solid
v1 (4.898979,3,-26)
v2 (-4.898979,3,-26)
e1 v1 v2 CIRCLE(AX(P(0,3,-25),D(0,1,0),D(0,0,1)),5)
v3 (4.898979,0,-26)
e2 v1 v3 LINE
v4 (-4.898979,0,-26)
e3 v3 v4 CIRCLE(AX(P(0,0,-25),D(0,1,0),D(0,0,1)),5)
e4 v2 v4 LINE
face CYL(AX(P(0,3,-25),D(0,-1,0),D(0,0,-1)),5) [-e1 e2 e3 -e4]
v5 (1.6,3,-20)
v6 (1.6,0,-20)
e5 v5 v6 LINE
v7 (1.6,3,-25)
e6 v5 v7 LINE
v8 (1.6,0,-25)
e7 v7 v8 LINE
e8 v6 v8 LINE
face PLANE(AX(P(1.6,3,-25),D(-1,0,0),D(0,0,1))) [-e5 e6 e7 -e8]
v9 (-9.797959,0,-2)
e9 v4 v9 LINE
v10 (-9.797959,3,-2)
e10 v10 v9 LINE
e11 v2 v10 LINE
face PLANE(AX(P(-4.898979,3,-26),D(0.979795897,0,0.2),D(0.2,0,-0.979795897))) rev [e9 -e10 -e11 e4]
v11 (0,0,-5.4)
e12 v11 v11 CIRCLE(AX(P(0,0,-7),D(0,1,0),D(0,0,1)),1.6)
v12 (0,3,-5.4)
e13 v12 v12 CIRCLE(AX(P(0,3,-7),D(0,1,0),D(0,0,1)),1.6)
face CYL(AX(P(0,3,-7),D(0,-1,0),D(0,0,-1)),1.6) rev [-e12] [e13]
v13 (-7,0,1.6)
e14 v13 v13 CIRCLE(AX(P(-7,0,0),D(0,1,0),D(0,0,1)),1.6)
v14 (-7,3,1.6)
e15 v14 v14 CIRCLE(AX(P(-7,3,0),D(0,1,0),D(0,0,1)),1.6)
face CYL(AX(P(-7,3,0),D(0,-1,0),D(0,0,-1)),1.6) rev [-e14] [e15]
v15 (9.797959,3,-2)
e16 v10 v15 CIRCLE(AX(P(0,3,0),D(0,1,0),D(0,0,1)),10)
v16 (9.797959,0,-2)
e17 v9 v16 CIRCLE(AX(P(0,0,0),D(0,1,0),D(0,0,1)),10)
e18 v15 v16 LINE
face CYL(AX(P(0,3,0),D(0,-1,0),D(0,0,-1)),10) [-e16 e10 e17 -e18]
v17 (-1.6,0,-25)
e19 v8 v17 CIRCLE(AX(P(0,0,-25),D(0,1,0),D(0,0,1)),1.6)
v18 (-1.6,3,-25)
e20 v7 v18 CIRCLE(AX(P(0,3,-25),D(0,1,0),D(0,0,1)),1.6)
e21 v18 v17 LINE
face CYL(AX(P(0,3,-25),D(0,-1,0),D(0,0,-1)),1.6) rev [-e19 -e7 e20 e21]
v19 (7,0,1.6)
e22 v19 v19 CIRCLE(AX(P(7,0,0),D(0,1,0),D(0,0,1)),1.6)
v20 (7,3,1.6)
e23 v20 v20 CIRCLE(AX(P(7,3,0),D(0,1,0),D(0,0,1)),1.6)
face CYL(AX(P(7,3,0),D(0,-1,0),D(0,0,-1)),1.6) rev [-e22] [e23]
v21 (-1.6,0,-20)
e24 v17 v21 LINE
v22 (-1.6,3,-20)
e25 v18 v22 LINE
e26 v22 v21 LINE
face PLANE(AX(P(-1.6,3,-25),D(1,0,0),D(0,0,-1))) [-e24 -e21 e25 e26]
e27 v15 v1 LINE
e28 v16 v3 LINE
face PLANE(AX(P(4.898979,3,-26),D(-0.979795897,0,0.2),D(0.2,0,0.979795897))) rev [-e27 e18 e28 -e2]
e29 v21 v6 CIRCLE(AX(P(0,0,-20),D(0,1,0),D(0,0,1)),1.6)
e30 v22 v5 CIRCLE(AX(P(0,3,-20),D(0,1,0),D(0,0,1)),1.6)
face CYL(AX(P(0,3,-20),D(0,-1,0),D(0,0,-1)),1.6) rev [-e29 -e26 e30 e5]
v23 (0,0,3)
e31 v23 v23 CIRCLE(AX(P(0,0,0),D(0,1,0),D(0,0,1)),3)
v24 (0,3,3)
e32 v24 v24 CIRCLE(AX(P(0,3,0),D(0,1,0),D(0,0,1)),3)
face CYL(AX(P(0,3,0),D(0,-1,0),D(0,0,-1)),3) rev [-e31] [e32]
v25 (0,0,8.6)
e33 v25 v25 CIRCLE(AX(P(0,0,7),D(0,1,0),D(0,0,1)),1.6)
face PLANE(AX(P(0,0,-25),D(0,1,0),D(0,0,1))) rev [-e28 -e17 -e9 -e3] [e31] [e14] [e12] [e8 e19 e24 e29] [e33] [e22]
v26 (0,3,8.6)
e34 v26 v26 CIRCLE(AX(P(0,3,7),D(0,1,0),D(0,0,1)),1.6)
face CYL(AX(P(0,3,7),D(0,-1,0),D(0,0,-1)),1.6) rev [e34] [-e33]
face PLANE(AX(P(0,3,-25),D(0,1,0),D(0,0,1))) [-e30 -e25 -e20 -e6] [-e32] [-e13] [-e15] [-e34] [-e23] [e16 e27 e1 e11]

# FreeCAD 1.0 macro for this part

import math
import FreeCAD as App
import Part
import Sketcher
from FreeCAD import Vector

doc = App.newDocument("Part")
body = doc.addObject("PartDesign::Body", "Body")

# Sketch on XZ plane
sketch1 = body.newObject("Sketcher::SketchObject", "Sketch")
sketch1.AttachmentSupport = (doc.getObject("XZ_Plane"), [""])
sketch1.MapMode = "FlatFace"
sketch1.addGeometry(Part.LineSegment(Vector(-4.9, -26, 0), Vector(-9.8, -2, 0)), False)
sketch1.addGeometry(Part.ArcOfCircle(Part.Circle(Vector(0, 0, 0), Vector(0, 0, 1), 10), math.radians(-12), math.radians(192)), False)
sketch1.addGeometry(Part.LineSegment(Vector(9.8, -2, 0), Vector(4.9, -26, 0)), False)
sketch1.addGeometry(Part.ArcOfCircle(Part.Circle(Vector(0, -25, 0), Vector(0, 0, 1), 5), math.radians(-168), math.radians(-12)), False)
sketch1.addGeometry(Part.Circle(Vector(-7, 0, 0), Vector(0, 0, 1), 1.6), False)
sketch1.addGeometry(Part.Circle(Vector(0, 7, 0), Vector(0, 0, 1), 1.6), False)
sketch1.addGeometry(Part.Circle(Vector(0, 0, 0), Vector(0, 0, 1), 3), False)
sketch1.addGeometry(Part.Circle(Vector(0, -7, 0), Vector(0, 0, 1), 1.6), False)
sketch1.addGeometry(Part.Circle(Vector(7, 0, 0), Vector(0, 0, 1), 1.6), False)
sketch1.addGeometry(Part.ArcOfCircle(Part.Circle(Vector(0, -25, 0), Vector(0, 0, 1), 1.6), math.radians(180), math.radians(360)), False)
sketch1.addGeometry(Part.LineSegment(Vector(1.6, -25, 0), Vector(1.6, -20, 0)), False)
sketch1.addGeometry(Part.ArcOfCircle(Part.Circle(Vector(0, -20, 0), Vector(0, 0, 1), 1.6), math.radians(0), math.radians(180)), False)
sketch1.addGeometry(Part.LineSegment(Vector(-1.6, -20, 0), Vector(-1.6, -25, 0)), False)
sketch1.addConstraint(Sketcher.Constraint("Tangent", 0, 2, 1, 2))
sketch1.addConstraint(Sketcher.Constraint("Tangent", 1, 1, 2, 1))
sketch1.addConstraint(Sketcher.Constraint("Tangent", 2, 2, 3, 2))
sketch1.addConstraint(Sketcher.Constraint("Tangent", 3, 1, 0, 1))
sketch1.addConstraint(Sketcher.Constraint("Tangent", 9, 2, 10, 1))
sketch1.addConstraint(Sketcher.Constraint("Tangent", 10, 2, 11, 1))
sketch1.addConstraint(Sketcher.Constraint("Tangent", 11, 2, 12, 1))
sketch1.addConstraint(Sketcher.Constraint("Tangent", 12, 2, 9, 1))
sketch1.addConstraint(Sketcher.Constraint("Vertical", 10))
sketch1.addConstraint(Sketcher.Constraint("Vertical", 12))
sketch1.addConstraint(Sketcher.Constraint("Coincident", 1, 3, -1, 1))
sketch1.addConstraint(Sketcher.Constraint("Coincident", 6, 3, -1, 1))
sketch1.addConstraint(Sketcher.Constraint("Coincident", 9, 3, 3, 3))
sketch1.addConstraint(Sketcher.Constraint("Equal", 4, 5))
sketch1.addConstraint(Sketcher.Constraint("Equal", 5, 7))
sketch1.addConstraint(Sketcher.Constraint("Equal", 7, 8))
sketch1.addConstraint(Sketcher.Constraint("Equal", 8, 9))
sketch1.addConstraint(Sketcher.Constraint("Symmetric", 5, 3, 7, 3, -1, 1))
sketch1.addConstraint(Sketcher.Constraint("Symmetric", 4, 3, 8, 3, -1, 1))
sketch1.addConstraint(Sketcher.Constraint("PointOnObject", 3, 3, -2))
sketch1.addConstraint(Sketcher.Constraint("PointOnObject", 4, 3, -1))
sketch1.addConstraint(Sketcher.Constraint("PointOnObject", 5, 3, -2))
sketch1.addConstraint(Sketcher.Constraint("Diameter", 6, 6.0))
sketch1.addConstraint(Sketcher.Constraint("Radius", 1, 10.0))
sketch1.addConstraint(Sketcher.Constraint("Radius", 3, 5.0))
sketch1.addConstraint(Sketcher.Constraint("Diameter", 4, 3.2))
sketch1.addConstraint(Sketcher.Constraint("DistanceY", 10, 1, 10, 2, 5.0))
sketch1.addConstraint(Sketcher.Constraint("DistanceY", 3, 3, -1, 1, 25.0))
sketch1.addConstraint(Sketcher.Constraint("DistanceX", 4, 3, -1, 1, 7.0))
sketch1.addConstraint(Sketcher.Constraint("DistanceY", -1, 1, 5, 3, 7.0))
pad1 = body.newObject("PartDesign::Pad", "Pad")
pad1.Profile = sketch1
pad1.Length = 3
pad1.Reversed = True

doc.recompute()
